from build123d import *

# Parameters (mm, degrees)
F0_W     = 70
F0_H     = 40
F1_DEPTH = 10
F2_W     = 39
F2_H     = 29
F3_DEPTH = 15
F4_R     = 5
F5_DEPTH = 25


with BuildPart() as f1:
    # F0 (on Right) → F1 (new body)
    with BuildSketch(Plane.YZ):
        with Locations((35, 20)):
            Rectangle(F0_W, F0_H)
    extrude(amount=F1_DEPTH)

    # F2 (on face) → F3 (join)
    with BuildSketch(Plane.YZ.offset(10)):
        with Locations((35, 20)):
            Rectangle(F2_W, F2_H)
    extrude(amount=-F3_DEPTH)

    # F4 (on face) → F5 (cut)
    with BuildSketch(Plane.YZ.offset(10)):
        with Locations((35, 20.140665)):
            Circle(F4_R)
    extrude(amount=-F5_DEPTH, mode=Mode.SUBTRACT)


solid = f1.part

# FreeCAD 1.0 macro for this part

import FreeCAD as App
import Part
import Sketcher
from FreeCAD import Vector


def add_polygon(sketch, points):
    """Adds a closed chain of lines whose ends are joined by coincident constraints."""
    first, n = sketch.GeometryCount, len(points)
    for a, b in zip(points, points[1:] + points[:1]):
        sketch.addGeometry(Part.LineSegment(App.Vector(*a, 0), App.Vector(*b, 0)), False)
    for i in range(n):
        sketch.addConstraint(Sketcher.Constraint("Coincident", first + i, 2, first + (i + 1) % n, 1))

doc = App.newDocument("Part")
body = doc.addObject("PartDesign::Body", "Body")

# Sketch on YZ plane
sketch1 = body.newObject("Sketcher::SketchObject", "Sketch")
sketch1.AttachmentSupport = (doc.getObject("YZ_Plane"), [""])
sketch1.MapMode = "FlatFace"
add_polygon(sketch1, [(0, 40), (0, 0), (70, 0), (70, 40)])  # lines 0-3
sketch1.addConstraint(Sketcher.Constraint("Vertical", 0))
sketch1.addConstraint(Sketcher.Constraint("Horizontal", 1))
sketch1.addConstraint(Sketcher.Constraint("Vertical", 2))
sketch1.addConstraint(Sketcher.Constraint("Horizontal", 3))
sketch1.addConstraint(Sketcher.Constraint("Coincident", 0, 2, -1, 1))
sketch1.addConstraint(Sketcher.Constraint("DistanceX", 1, 1, 1, 2, 70.0))
sketch1.addConstraint(Sketcher.Constraint("DistanceY", 0, 2, 0, 1, 40.0))
pad1 = body.newObject("PartDesign::Pad", "Pad")
pad1.Profile = sketch1
pad1.Length = 10

# Sketch on YZ plane
sketch2 = body.newObject("Sketcher::SketchObject", "Sketch001")
sketch2.AttachmentSupport = (doc.getObject("YZ_Plane"), [""])
sketch2.MapMode = "FlatFace"
sketch2.AttachmentOffset = App.Placement(Vector(0, 0, 10), App.Rotation())
add_polygon(sketch2, [(16, 34), (16, 6), (54, 6), (54, 34)])  # lines 0-3
sketch2.addConstraint(Sketcher.Constraint("Vertical", 0))
sketch2.addConstraint(Sketcher.Constraint("Horizontal", 1))
sketch2.addConstraint(Sketcher.Constraint("Vertical", 2))
sketch2.addConstraint(Sketcher.Constraint("Horizontal", 3))
sketch2.addConstraint(Sketcher.Constraint("DistanceX", 1, 1, 1, 2, 39.0))
sketch2.addConstraint(Sketcher.Constraint("DistanceY", 0, 2, 0, 1, 29.0))
sketch2.addConstraint(Sketcher.Constraint("DistanceX", -1, 1, 0, 2, 15.5))
sketch2.addConstraint(Sketcher.Constraint("DistanceY", -1, 1, 0, 2, 5.5))
pad2 = body.newObject("PartDesign::Pad", "Pad001")
pad2.Profile = sketch2
pad2.Length = 15
pad2.Reversed = True

# Sketch on YZ plane
sketch3 = body.newObject("Sketcher::SketchObject", "Sketch002")
sketch3.AttachmentSupport = (doc.getObject("YZ_Plane"), [""])
sketch3.MapMode = "FlatFace"
sketch3.AttachmentOffset = App.Placement(Vector(0, 0, 10), App.Rotation())
sketch3.addGeometry(Part.Circle(Vector(35, 20, 0), Vector(0, 0, 1), 5), False)
sketch3.addConstraint(Sketcher.Constraint("Diameter", 0, 10.0))
sketch3.addConstraint(Sketcher.Constraint("DistanceX", -1, 1, 0, 3, 35.0))
sketch3.addConstraint(Sketcher.Constraint("DistanceY", -1, 1, 0, 3, 20.140665))
pocket1 = body.newObject("PartDesign::Pocket", "Pocket")
pocket1.Profile = sketch3
pocket1.Length = 25

doc.recompute()
